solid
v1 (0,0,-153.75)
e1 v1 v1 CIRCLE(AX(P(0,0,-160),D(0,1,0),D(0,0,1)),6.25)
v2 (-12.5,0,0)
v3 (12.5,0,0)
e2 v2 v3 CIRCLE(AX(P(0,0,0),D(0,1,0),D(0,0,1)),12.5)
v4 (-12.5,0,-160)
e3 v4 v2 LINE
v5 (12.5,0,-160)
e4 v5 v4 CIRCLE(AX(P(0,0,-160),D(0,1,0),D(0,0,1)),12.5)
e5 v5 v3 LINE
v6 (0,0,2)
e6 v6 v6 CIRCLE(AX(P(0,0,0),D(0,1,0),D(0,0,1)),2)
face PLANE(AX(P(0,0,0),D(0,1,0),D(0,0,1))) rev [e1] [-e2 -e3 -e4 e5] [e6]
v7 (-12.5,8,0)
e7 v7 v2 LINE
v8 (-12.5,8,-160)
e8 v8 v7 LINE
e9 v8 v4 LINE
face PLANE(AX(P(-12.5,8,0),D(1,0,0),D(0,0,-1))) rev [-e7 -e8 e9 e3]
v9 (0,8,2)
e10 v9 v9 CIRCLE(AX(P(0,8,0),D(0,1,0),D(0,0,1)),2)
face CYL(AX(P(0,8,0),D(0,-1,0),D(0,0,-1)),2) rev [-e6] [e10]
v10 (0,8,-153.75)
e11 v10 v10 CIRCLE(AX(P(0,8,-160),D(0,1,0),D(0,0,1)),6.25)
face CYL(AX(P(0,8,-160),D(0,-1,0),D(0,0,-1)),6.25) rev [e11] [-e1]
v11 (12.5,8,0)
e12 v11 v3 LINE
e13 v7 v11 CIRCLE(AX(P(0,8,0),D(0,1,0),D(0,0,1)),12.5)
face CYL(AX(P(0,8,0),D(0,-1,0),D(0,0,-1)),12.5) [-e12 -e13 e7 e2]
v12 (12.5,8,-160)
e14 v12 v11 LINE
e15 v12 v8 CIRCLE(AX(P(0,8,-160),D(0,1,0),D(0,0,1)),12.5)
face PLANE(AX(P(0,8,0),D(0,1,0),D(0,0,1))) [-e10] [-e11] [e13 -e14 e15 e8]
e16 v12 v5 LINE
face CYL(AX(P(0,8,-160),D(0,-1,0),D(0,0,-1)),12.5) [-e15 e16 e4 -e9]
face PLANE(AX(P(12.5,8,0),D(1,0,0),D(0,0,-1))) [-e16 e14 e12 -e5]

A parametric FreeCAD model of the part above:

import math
import FreeCAD as App
import Part
import Sketcher

doc = App.newDocument("Part")
body = doc.addObject("PartDesign::Body", "Body")

sketch1 = body.newObject("Sketcher::SketchObject", "Sketch")
sketch1.AttachmentSupport = (doc.getObject("XZ_Plane"), [""])
sketch1.MapMode = "FlatFace"
sketch1.addGeometry([
    Part.ArcOfCircle(Part.Circle(App.Vector(0, -160, 0), App.Vector(0, 0, 1), 12.5), math.radians(180), math.radians(360)),
    Part.LineSegment(App.Vector(-12.5, -160, 0), App.Vector(-12.5, 0, 0)),
    Part.ArcOfCircle(Part.Circle(App.Vector(0, 0, 0), App.Vector(0, 0, 1), 12.5), math.radians(0), math.radians(180)),
    Part.LineSegment(App.Vector(12.5, 0, 0), App.Vector(12.5, -160, 0)),
    Part.Circle(App.Vector(0, 0, 0), App.Vector(0, 0, 1), 2),
    Part.Circle(App.Vector(0, -160, 0), App.Vector(0, 0, 1), 6.2),
], False)
sketch1.addConstraint([
    Sketcher.Constraint("Tangent", 0, 1, 1, 1),
    Sketcher.Constraint("Tangent", 1, 2, 2, 2),
    Sketcher.Constraint("Tangent", 2, 1, 3, 1),
    Sketcher.Constraint("Tangent", 3, 2, 0, 2),
    Sketcher.Constraint("Vertical", 1),
    Sketcher.Constraint("Vertical", 3),
    Sketcher.Constraint("Coincident", 2, 3, -1, 1),
    Sketcher.Constraint("Coincident", 4, 3, -1, 1),
    Sketcher.Constraint("Coincident", 5, 3, 0, 3),
    Sketcher.Constraint("Diameter", 4, 4.0),
    Sketcher.Constraint("Diameter", 5, 12.5),
    Sketcher.Constraint("Radius", 0, 12.5),
    Sketcher.Constraint("DistanceY", 1, 1, 1, 2, 160.0),
])
pad1 = body.newObject("PartDesign::Pad", "Pad")
pad1.Profile = sketch1
pad1.Length = 8
pad1.Reversed = True

doc.recompute()
